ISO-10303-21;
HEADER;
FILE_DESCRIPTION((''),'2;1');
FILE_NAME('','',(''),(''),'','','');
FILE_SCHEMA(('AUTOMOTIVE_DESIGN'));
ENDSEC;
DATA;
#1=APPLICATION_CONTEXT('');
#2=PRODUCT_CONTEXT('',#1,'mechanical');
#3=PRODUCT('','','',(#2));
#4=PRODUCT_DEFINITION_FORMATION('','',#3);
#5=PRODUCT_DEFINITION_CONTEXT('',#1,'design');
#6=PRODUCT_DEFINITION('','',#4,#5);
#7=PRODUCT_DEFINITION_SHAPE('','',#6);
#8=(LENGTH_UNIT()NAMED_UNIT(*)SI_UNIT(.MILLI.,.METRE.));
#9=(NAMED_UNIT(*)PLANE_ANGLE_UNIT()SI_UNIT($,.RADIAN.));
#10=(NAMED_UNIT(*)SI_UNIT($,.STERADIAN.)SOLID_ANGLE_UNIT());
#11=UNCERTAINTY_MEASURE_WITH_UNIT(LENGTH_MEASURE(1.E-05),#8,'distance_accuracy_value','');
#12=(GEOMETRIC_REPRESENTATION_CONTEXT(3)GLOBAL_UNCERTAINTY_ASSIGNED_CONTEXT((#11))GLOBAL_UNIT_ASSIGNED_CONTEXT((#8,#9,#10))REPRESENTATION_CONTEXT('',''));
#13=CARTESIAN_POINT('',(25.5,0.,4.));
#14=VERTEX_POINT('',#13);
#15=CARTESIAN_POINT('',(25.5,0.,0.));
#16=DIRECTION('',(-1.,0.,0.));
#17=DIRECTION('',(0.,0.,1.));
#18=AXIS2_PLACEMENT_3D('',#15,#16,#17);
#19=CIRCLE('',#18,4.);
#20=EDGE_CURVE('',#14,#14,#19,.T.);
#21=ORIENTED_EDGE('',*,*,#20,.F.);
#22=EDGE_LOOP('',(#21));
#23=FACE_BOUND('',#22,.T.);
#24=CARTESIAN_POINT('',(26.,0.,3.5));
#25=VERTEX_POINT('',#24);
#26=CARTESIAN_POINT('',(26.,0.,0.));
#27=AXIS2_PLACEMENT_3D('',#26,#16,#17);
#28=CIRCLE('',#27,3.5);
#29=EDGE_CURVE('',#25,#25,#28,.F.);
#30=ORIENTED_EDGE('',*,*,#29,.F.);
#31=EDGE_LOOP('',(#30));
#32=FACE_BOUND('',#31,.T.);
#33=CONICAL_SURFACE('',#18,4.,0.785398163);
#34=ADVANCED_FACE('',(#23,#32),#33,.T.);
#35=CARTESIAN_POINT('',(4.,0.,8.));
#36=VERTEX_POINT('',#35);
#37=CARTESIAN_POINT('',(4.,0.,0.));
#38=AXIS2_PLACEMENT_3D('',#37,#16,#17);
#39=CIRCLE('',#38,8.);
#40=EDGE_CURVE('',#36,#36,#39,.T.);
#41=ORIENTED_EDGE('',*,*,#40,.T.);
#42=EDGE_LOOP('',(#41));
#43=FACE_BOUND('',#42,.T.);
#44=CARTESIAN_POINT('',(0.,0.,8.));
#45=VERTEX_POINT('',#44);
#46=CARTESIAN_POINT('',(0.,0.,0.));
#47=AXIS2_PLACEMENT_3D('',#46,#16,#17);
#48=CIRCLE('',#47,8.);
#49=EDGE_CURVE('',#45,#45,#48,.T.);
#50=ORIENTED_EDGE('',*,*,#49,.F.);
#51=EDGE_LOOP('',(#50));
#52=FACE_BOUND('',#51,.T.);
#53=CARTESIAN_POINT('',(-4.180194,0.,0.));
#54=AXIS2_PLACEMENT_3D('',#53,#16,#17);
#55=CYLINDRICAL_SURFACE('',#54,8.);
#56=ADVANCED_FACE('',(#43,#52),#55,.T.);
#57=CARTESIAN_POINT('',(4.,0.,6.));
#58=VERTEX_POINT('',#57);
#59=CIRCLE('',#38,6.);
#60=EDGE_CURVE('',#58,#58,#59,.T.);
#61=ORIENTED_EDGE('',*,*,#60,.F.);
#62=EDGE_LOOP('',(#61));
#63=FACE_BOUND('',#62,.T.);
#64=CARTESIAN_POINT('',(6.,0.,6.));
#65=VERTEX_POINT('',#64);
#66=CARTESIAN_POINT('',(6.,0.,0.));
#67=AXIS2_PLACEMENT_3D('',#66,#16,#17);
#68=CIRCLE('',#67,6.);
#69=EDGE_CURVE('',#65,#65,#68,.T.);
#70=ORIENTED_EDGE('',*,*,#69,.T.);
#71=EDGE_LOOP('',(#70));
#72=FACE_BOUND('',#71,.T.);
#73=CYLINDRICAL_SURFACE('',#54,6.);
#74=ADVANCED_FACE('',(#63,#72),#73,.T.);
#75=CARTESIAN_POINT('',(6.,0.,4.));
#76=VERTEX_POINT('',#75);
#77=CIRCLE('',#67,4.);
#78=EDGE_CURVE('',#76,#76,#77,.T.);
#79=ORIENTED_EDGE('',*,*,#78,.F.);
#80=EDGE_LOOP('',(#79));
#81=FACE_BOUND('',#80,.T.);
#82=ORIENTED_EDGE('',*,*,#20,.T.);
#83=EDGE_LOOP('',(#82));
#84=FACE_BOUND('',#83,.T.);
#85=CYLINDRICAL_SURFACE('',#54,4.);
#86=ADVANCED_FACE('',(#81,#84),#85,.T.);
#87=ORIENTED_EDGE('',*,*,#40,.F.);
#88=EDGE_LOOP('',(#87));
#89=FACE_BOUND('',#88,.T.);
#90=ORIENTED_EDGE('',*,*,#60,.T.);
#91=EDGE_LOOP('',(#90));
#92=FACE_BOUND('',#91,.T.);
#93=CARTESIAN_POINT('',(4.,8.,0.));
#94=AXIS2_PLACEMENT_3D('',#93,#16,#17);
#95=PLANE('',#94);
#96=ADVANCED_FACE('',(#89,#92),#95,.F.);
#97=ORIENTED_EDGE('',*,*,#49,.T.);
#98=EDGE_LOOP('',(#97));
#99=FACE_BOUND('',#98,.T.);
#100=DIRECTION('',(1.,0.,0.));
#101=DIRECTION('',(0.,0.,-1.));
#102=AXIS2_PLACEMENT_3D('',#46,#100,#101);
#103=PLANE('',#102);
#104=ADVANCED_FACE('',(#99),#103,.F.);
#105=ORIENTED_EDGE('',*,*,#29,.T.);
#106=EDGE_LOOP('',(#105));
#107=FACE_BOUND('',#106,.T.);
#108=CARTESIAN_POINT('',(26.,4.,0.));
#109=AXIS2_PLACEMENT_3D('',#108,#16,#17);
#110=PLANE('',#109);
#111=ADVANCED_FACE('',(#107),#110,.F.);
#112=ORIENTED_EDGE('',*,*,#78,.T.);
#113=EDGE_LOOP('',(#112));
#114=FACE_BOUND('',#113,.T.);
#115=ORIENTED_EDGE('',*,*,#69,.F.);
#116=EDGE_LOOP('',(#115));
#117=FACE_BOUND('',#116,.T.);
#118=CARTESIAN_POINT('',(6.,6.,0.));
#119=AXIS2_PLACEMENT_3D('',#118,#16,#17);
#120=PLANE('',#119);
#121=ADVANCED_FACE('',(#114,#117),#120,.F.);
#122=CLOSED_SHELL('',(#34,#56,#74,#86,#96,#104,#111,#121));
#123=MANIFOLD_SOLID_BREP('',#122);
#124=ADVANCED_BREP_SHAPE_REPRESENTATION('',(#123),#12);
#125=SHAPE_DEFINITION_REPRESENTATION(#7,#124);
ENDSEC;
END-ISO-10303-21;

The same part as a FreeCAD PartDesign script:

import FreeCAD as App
import Part
import Sketcher

V = App.Vector
Q = App.Units.Quantity


def edges_at(feature, points):
    """Names of the edges that pass closest to the given points."""
    edges = feature.Shape.Edges
    near = lambda p: min(range(len(edges)), key=lambda i: edges[i].distToShape(Part.Vertex(*p))[0])
    return sorted({f"Edge{near(p) + 1}" for p in points})


def add_polygon(sketch, points):
    """Adds a closed chain of lines whose ends are joined by coincident constraints."""
    first, n = sketch.GeometryCount, len(points)
    for a, b in zip(points, points[1:] + points[:1]):
        sketch.addGeometry(Part.LineSegment(App.Vector(*a, 0), App.Vector(*b, 0)), False)
    for i in range(n):
        sketch.addConstraint(Sketcher.Constraint("Coincident", first + i, 2, first + (i + 1) % n, 1))

doc = App.newDocument("Part")
body = doc.addObject("PartDesign::Body", "Body")

sketch1 = doc.addObject("Sketcher::SketchObject", "Sketch")
body.addObject(sketch1)
sketch1.AttachmentSupport = (doc.XY_Plane, [""])
sketch1.MapMode = "FlatFace"
add_polygon(sketch1, [(0, 8), (0, 0), (26, 0), (26, 4), (6, 4), (6, 6), (4, 6), (4, 8)])
sketch1.addConstraint(Sketcher.Constraint("Vertical", 0))
sketch1.addConstraint(Sketcher.Constraint("Horizontal", 1))
sketch1.addConstraint(Sketcher.Constraint("Vertical", 2))
sketch1.addConstraint(Sketcher.Constraint("Horizontal", 3))
sketch1.addConstraint(Sketcher.Constraint("Vertical", 4))
sketch1.addConstraint(Sketcher.Constraint("Horizontal", 5))
sketch1.addConstraint(Sketcher.Constraint("Vertical", 6))
sketch1.addConstraint(Sketcher.Constraint("Horizontal", 7))
sketch1.addConstraint(Sketcher.Constraint("Coincident", 0, 2, -1, 1))
sketch1.addConstraint(Sketcher.Constraint("Equal", 7, 2))
sketch1.addConstraint(Sketcher.Constraint("Equal", 5, 4))
sketch1.addConstraint(Sketcher.Constraint("Equal", 4, 6))
sketch1.addConstraint(Sketcher.Constraint("DistanceX", 1, 1, 1, 2, Q("26 mm")))
sketch1.addConstraint(Sketcher.Constraint("DistanceX", 3, 2, 3, 1, Q("20 mm")))
sketch1.addConstraint(Sketcher.Constraint("DistanceX", 5, 2, 5, 1, Q("2 mm")))
revolution = doc.addObject("PartDesign::Revolution", "Revolution")
body.addObject(revolution)
revolution.Profile = sketch1
revolution.ReferenceAxis = (sketch1, ["H_Axis"])
revolution.Angle = 360
doc.recompute()

chamfer = doc.addObject("PartDesign::Chamfer", "Chamfer")
body.addObject(chamfer)
chamfer.Base = (revolution, edges_at(revolution, [(26, 0, -4)]))
chamfer.Size = 0.5

doc.recompute()
